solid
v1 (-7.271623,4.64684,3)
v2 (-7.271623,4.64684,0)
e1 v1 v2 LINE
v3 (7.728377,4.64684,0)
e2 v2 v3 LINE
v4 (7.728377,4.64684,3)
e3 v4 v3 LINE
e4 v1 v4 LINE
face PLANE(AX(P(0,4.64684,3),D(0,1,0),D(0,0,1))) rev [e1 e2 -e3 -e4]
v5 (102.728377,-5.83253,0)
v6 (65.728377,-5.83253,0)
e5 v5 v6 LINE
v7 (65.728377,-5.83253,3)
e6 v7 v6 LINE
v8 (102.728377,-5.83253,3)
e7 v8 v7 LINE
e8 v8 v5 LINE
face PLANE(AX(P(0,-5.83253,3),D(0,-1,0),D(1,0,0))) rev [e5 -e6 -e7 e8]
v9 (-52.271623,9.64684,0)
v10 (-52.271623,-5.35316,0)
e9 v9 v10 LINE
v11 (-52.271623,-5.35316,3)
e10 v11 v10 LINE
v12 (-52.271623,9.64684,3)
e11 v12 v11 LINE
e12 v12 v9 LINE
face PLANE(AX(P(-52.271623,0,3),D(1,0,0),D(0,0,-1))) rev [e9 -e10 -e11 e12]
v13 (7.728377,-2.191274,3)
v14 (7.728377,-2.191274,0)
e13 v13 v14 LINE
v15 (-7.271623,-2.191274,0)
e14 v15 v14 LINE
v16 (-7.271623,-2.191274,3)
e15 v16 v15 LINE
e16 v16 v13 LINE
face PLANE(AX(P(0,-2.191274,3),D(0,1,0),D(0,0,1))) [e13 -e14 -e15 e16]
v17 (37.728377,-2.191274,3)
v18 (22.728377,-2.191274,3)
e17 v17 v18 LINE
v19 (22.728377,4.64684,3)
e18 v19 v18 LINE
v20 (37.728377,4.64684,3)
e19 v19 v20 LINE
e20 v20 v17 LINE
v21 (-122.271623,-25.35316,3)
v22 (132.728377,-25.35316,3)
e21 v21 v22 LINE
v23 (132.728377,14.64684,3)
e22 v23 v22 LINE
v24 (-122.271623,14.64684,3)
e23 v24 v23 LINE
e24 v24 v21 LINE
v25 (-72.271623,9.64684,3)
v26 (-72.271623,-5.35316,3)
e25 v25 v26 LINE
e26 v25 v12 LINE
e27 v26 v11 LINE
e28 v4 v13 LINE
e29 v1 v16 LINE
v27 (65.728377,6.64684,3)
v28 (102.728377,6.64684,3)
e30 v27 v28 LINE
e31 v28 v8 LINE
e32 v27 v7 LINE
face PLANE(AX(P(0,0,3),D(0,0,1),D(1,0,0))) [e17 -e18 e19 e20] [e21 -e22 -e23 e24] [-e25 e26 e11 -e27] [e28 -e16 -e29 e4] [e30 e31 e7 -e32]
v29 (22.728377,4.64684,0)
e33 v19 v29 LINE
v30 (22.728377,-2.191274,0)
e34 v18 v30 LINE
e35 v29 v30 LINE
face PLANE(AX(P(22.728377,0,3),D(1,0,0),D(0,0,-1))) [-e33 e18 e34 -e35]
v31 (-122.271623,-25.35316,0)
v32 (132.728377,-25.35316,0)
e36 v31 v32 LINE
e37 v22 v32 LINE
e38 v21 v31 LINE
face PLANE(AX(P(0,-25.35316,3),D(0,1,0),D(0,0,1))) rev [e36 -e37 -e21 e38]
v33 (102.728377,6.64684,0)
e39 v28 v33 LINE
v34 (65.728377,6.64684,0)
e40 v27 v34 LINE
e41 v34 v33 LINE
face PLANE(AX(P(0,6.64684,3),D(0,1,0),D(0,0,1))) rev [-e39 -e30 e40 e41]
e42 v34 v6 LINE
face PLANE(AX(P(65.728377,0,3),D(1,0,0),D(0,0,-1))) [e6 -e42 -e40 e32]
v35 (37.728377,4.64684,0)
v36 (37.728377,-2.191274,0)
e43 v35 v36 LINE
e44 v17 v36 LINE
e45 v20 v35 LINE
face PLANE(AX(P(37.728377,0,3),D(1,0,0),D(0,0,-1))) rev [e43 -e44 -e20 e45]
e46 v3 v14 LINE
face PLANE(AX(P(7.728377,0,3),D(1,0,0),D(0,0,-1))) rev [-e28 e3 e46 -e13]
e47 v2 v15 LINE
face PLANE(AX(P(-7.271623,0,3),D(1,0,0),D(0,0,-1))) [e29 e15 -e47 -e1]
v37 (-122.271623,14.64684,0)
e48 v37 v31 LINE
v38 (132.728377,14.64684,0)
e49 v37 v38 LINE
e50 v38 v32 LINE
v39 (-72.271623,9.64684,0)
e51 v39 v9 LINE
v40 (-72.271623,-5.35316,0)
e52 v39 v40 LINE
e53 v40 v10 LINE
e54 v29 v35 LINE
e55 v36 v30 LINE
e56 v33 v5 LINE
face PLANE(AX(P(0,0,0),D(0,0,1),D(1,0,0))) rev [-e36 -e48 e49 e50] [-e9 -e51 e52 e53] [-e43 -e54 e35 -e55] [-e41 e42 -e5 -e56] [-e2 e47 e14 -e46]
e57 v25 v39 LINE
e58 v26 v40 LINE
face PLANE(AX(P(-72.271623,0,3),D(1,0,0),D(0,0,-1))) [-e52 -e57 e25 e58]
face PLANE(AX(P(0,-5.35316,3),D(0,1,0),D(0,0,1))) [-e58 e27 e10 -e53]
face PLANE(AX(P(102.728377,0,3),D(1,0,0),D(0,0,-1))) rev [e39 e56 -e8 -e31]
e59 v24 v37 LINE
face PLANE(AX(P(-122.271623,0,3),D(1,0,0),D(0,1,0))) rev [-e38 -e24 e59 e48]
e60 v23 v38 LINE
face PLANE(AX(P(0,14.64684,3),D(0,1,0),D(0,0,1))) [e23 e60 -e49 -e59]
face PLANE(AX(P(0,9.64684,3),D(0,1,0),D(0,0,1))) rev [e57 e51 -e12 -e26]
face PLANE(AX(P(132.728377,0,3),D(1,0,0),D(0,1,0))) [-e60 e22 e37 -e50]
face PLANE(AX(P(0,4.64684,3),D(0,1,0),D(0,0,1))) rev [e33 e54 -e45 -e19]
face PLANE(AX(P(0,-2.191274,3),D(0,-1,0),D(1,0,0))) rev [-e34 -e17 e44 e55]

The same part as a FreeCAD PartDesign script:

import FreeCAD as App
import Part
import Sketcher

V = App.Vector
Q = App.Units.Quantity

doc = App.newDocument("Part")
body = doc.addObject("PartDesign::Body", "Body")

sketch1 = body.newObject("Sketcher::SketchObject", "Sketch")
sketch1.AttachmentSupport = (doc.getObject("XY_Plane"), [""])
sketch1.MapMode = "FlatFace"
sketch1.addGeometry(Part.LineSegment(V(-122, 15, 0), V(-122, -25, 0)), False)
sketch1.addGeometry(Part.LineSegment(V(-122, -25, 0), V(133, -25, 0)), False)
sketch1.addGeometry(Part.LineSegment(V(133, -25, 0), V(133, 15, 0)), False)
sketch1.addGeometry(Part.LineSegment(V(133, 15, 0), V(-122, 15, 0)), False)
sketch1.addGeometry(Part.LineSegment(V(8, -2, 0), V(-7, -2, 0)), False)
sketch1.addGeometry(Part.LineSegment(V(-7, -2, 0), V(-7, 5, 0)), False)
sketch1.addGeometry(Part.LineSegment(V(-7, 5, 0), V(8, 5, 0)), False)
sketch1.addGeometry(Part.LineSegment(V(8, 5, 0), V(8, -2, 0)), False)
sketch1.addGeometry(Part.LineSegment(V(38, -2, 0), V(23, -2, 0)), False)
sketch1.addGeometry(Part.LineSegment(V(23, -2, 0), V(23, 5, 0)), False)
sketch1.addGeometry(Part.LineSegment(V(23, 5, 0), V(38, 5, 0)), False)
sketch1.addGeometry(Part.LineSegment(V(38, 5, 0), V(38, -2, 0)), False)
sketch1.addGeometry(Part.LineSegment(V(103, -6, 0), V(66, -6, 0)), False)
sketch1.addGeometry(Part.LineSegment(V(66, -6, 0), V(66, 7, 0)), False)
sketch1.addGeometry(Part.LineSegment(V(66, 7, 0), V(103, 7, 0)), False)
sketch1.addGeometry(Part.LineSegment(V(103, 7, 0), V(103, -6, 0)), False)
sketch1.addGeometry(Part.LineSegment(V(-52, -5, 0), V(-72, -5, 0)), False)
sketch1.addGeometry(Part.LineSegment(V(-72, -5, 0), V(-72, 10, 0)), False)
sketch1.addGeometry(Part.LineSegment(V(-72, 10, 0), V(-52, 10, 0)), False)
sketch1.addGeometry(Part.LineSegment(V(-52, 10, 0), V(-52, -5, 0)), False)
sketch1.addConstraint(Sketcher.Constraint("Coincident", 0, 2, 1, 1))
sketch1.addConstraint(Sketcher.Constraint("Coincident", 1, 2, 2, 1))
sketch1.addConstraint(Sketcher.Constraint("Coincident", 2, 2, 3, 1))
sketch1.addConstraint(Sketcher.Constraint("Coincident", 3, 2, 0, 1))
sketch1.addConstraint(Sketcher.Constraint("Coincident", 4, 2, 5, 1))
sketch1.addConstraint(Sketcher.Constraint("Coincident", 5, 2, 6, 1))
sketch1.addConstraint(Sketcher.Constraint("Coincident", 6, 2, 7, 1))
sketch1.addConstraint(Sketcher.Constraint("Coincident", 7, 2, 4, 1))
sketch1.addConstraint(Sketcher.Constraint("Coincident", 8, 2, 9, 1))
sketch1.addConstraint(Sketcher.Constraint("Coincident", 9, 2, 10, 1))
sketch1.addConstraint(Sketcher.Constraint("Coincident", 10, 2, 11, 1))
sketch1.addConstraint(Sketcher.Constraint("Coincident", 11, 2, 8, 1))
sketch1.addConstraint(Sketcher.Constraint("Coincident", 12, 2, 13, 1))
sketch1.addConstraint(Sketcher.Constraint("Coincident", 13, 2, 14, 1))
sketch1.addConstraint(Sketcher.Constraint("Coincident", 14, 2, 15, 1))
sketch1.addConstraint(Sketcher.Constraint("Coincident", 15, 2, 12, 1))
sketch1.addConstraint(Sketcher.Constraint("Coincident", 16, 2, 17, 1))
sketch1.addConstraint(Sketcher.Constraint("Coincident", 17, 2, 18, 1))
sketch1.addConstraint(Sketcher.Constraint("Coincident", 18, 2, 19, 1))
sketch1.addConstraint(Sketcher.Constraint("Coincident", 19, 2, 16, 1))
sketch1.addConstraint(Sketcher.Constraint("Vertical", 0))
sketch1.addConstraint(Sketcher.Constraint("Horizontal", 1))
sketch1.addConstraint(Sketcher.Constraint("Vertical", 2))
sketch1.addConstraint(Sketcher.Constraint("Horizontal", 3))
sketch1.addConstraint(Sketcher.Constraint("Horizontal", 4))
sketch1.addConstraint(Sketcher.Constraint("Vertical", 5))
sketch1.addConstraint(Sketcher.Constraint("Horizontal", 6))
sketch1.addConstraint(Sketcher.Constraint("Vertical", 7))
sketch1.addConstraint(Sketcher.Constraint("Horizontal", 8))
sketch1.addConstraint(Sketcher.Constraint("Vertical", 9))
sketch1.addConstraint(Sketcher.Constraint("Horizontal", 10))
sketch1.addConstraint(Sketcher.Constraint("Vertical", 11))
sketch1.addConstraint(Sketcher.Constraint("Horizontal", 12))
sketch1.addConstraint(Sketcher.Constraint("Vertical", 13))
sketch1.addConstraint(Sketcher.Constraint("Horizontal", 14))
sketch1.addConstraint(Sketcher.Constraint("Vertical", 15))
sketch1.addConstraint(Sketcher.Constraint("Horizontal", 16))
sketch1.addConstraint(Sketcher.Constraint("Vertical", 17))
sketch1.addConstraint(Sketcher.Constraint("Horizontal", 18))
sketch1.addConstraint(Sketcher.Constraint("Vertical", 19))
sketch1.addConstraint(Sketcher.Constraint("Horizontal", 7, 2, 8, 2))
sketch1.addConstraint(Sketcher.Constraint("Horizontal", 6, 2, 9, 2))
sketch1.addConstraint(Sketcher.Constraint("Equal", 6, 8))
sketch1.addConstraint(Sketcher.Constraint("Equal", 10, 17))
sketch1.addConstraint(Sketcher.Constraint("DistanceX", 1, 1, 1, 2, Q("255 mm")))
sketch1.addConstraint(Sketcher.Constraint("DistanceX", 4, 2, 4, 1, Q("15 mm")))
sketch1.addConstraint(Sketcher.Constraint("DistanceX", 12, 2, 12, 1, Q("37 mm")))
sketch1.addConstraint(Sketcher.Constraint("DistanceX", 16, 2, 16, 1, Q("20 mm")))
sketch1.addConstraint(Sketcher.Constraint("DistanceY", 0, 2, 0, 1, Q("40 mm")))
sketch1.addConstraint(Sketcher.Constraint("DistanceX", 3, 2, 4, 2, Q("115 mm")))
sketch1.addConstraint(Sketcher.Constraint("DistanceY", 5, 2, 3, 2, Q("10 mm")))
sketch1.addConstraint(Sketcher.Constraint("DistanceX", 7, 2, 8, 2, Q("15 mm")))
sketch1.addConstraint(Sketcher.Constraint("DistanceX", 11, 2, 12, 2, Q("28 mm")))
sketch1.addConstraint(Sketcher.Constraint("DistanceY", 10, 2, 13, 2, Q("2 mm")))
sketch1.addConstraint(Sketcher.Constraint("DistanceX", 0, 2, 16, 2, Q("50 mm")))
sketch1.addConstraint(Sketcher.Constraint("DistanceY", 0, 2, 16, 2, Q("20 mm")))
sketch1.addConstraint(Sketcher.Constraint("DistanceY", 13, 1, 13, 2, Q("12.47937 mm")))
sketch1.addConstraint(Sketcher.Constraint("DistanceY", 5, 1, 5, 2, Q("6.838114 mm")))
sketch1.addConstraint(Sketcher.Constraint("DistanceY", 0, 2, -1, 1, Q("25.35316 mm")))
sketch1.addConstraint(Sketcher.Constraint("DistanceX", 0, 2, -1, 1, Q("122.271623 mm")))
pad1 = body.newObject("PartDesign::Pad", "Pad")
pad1.Profile = sketch1
pad1.Length = 3

doc.recompute()
